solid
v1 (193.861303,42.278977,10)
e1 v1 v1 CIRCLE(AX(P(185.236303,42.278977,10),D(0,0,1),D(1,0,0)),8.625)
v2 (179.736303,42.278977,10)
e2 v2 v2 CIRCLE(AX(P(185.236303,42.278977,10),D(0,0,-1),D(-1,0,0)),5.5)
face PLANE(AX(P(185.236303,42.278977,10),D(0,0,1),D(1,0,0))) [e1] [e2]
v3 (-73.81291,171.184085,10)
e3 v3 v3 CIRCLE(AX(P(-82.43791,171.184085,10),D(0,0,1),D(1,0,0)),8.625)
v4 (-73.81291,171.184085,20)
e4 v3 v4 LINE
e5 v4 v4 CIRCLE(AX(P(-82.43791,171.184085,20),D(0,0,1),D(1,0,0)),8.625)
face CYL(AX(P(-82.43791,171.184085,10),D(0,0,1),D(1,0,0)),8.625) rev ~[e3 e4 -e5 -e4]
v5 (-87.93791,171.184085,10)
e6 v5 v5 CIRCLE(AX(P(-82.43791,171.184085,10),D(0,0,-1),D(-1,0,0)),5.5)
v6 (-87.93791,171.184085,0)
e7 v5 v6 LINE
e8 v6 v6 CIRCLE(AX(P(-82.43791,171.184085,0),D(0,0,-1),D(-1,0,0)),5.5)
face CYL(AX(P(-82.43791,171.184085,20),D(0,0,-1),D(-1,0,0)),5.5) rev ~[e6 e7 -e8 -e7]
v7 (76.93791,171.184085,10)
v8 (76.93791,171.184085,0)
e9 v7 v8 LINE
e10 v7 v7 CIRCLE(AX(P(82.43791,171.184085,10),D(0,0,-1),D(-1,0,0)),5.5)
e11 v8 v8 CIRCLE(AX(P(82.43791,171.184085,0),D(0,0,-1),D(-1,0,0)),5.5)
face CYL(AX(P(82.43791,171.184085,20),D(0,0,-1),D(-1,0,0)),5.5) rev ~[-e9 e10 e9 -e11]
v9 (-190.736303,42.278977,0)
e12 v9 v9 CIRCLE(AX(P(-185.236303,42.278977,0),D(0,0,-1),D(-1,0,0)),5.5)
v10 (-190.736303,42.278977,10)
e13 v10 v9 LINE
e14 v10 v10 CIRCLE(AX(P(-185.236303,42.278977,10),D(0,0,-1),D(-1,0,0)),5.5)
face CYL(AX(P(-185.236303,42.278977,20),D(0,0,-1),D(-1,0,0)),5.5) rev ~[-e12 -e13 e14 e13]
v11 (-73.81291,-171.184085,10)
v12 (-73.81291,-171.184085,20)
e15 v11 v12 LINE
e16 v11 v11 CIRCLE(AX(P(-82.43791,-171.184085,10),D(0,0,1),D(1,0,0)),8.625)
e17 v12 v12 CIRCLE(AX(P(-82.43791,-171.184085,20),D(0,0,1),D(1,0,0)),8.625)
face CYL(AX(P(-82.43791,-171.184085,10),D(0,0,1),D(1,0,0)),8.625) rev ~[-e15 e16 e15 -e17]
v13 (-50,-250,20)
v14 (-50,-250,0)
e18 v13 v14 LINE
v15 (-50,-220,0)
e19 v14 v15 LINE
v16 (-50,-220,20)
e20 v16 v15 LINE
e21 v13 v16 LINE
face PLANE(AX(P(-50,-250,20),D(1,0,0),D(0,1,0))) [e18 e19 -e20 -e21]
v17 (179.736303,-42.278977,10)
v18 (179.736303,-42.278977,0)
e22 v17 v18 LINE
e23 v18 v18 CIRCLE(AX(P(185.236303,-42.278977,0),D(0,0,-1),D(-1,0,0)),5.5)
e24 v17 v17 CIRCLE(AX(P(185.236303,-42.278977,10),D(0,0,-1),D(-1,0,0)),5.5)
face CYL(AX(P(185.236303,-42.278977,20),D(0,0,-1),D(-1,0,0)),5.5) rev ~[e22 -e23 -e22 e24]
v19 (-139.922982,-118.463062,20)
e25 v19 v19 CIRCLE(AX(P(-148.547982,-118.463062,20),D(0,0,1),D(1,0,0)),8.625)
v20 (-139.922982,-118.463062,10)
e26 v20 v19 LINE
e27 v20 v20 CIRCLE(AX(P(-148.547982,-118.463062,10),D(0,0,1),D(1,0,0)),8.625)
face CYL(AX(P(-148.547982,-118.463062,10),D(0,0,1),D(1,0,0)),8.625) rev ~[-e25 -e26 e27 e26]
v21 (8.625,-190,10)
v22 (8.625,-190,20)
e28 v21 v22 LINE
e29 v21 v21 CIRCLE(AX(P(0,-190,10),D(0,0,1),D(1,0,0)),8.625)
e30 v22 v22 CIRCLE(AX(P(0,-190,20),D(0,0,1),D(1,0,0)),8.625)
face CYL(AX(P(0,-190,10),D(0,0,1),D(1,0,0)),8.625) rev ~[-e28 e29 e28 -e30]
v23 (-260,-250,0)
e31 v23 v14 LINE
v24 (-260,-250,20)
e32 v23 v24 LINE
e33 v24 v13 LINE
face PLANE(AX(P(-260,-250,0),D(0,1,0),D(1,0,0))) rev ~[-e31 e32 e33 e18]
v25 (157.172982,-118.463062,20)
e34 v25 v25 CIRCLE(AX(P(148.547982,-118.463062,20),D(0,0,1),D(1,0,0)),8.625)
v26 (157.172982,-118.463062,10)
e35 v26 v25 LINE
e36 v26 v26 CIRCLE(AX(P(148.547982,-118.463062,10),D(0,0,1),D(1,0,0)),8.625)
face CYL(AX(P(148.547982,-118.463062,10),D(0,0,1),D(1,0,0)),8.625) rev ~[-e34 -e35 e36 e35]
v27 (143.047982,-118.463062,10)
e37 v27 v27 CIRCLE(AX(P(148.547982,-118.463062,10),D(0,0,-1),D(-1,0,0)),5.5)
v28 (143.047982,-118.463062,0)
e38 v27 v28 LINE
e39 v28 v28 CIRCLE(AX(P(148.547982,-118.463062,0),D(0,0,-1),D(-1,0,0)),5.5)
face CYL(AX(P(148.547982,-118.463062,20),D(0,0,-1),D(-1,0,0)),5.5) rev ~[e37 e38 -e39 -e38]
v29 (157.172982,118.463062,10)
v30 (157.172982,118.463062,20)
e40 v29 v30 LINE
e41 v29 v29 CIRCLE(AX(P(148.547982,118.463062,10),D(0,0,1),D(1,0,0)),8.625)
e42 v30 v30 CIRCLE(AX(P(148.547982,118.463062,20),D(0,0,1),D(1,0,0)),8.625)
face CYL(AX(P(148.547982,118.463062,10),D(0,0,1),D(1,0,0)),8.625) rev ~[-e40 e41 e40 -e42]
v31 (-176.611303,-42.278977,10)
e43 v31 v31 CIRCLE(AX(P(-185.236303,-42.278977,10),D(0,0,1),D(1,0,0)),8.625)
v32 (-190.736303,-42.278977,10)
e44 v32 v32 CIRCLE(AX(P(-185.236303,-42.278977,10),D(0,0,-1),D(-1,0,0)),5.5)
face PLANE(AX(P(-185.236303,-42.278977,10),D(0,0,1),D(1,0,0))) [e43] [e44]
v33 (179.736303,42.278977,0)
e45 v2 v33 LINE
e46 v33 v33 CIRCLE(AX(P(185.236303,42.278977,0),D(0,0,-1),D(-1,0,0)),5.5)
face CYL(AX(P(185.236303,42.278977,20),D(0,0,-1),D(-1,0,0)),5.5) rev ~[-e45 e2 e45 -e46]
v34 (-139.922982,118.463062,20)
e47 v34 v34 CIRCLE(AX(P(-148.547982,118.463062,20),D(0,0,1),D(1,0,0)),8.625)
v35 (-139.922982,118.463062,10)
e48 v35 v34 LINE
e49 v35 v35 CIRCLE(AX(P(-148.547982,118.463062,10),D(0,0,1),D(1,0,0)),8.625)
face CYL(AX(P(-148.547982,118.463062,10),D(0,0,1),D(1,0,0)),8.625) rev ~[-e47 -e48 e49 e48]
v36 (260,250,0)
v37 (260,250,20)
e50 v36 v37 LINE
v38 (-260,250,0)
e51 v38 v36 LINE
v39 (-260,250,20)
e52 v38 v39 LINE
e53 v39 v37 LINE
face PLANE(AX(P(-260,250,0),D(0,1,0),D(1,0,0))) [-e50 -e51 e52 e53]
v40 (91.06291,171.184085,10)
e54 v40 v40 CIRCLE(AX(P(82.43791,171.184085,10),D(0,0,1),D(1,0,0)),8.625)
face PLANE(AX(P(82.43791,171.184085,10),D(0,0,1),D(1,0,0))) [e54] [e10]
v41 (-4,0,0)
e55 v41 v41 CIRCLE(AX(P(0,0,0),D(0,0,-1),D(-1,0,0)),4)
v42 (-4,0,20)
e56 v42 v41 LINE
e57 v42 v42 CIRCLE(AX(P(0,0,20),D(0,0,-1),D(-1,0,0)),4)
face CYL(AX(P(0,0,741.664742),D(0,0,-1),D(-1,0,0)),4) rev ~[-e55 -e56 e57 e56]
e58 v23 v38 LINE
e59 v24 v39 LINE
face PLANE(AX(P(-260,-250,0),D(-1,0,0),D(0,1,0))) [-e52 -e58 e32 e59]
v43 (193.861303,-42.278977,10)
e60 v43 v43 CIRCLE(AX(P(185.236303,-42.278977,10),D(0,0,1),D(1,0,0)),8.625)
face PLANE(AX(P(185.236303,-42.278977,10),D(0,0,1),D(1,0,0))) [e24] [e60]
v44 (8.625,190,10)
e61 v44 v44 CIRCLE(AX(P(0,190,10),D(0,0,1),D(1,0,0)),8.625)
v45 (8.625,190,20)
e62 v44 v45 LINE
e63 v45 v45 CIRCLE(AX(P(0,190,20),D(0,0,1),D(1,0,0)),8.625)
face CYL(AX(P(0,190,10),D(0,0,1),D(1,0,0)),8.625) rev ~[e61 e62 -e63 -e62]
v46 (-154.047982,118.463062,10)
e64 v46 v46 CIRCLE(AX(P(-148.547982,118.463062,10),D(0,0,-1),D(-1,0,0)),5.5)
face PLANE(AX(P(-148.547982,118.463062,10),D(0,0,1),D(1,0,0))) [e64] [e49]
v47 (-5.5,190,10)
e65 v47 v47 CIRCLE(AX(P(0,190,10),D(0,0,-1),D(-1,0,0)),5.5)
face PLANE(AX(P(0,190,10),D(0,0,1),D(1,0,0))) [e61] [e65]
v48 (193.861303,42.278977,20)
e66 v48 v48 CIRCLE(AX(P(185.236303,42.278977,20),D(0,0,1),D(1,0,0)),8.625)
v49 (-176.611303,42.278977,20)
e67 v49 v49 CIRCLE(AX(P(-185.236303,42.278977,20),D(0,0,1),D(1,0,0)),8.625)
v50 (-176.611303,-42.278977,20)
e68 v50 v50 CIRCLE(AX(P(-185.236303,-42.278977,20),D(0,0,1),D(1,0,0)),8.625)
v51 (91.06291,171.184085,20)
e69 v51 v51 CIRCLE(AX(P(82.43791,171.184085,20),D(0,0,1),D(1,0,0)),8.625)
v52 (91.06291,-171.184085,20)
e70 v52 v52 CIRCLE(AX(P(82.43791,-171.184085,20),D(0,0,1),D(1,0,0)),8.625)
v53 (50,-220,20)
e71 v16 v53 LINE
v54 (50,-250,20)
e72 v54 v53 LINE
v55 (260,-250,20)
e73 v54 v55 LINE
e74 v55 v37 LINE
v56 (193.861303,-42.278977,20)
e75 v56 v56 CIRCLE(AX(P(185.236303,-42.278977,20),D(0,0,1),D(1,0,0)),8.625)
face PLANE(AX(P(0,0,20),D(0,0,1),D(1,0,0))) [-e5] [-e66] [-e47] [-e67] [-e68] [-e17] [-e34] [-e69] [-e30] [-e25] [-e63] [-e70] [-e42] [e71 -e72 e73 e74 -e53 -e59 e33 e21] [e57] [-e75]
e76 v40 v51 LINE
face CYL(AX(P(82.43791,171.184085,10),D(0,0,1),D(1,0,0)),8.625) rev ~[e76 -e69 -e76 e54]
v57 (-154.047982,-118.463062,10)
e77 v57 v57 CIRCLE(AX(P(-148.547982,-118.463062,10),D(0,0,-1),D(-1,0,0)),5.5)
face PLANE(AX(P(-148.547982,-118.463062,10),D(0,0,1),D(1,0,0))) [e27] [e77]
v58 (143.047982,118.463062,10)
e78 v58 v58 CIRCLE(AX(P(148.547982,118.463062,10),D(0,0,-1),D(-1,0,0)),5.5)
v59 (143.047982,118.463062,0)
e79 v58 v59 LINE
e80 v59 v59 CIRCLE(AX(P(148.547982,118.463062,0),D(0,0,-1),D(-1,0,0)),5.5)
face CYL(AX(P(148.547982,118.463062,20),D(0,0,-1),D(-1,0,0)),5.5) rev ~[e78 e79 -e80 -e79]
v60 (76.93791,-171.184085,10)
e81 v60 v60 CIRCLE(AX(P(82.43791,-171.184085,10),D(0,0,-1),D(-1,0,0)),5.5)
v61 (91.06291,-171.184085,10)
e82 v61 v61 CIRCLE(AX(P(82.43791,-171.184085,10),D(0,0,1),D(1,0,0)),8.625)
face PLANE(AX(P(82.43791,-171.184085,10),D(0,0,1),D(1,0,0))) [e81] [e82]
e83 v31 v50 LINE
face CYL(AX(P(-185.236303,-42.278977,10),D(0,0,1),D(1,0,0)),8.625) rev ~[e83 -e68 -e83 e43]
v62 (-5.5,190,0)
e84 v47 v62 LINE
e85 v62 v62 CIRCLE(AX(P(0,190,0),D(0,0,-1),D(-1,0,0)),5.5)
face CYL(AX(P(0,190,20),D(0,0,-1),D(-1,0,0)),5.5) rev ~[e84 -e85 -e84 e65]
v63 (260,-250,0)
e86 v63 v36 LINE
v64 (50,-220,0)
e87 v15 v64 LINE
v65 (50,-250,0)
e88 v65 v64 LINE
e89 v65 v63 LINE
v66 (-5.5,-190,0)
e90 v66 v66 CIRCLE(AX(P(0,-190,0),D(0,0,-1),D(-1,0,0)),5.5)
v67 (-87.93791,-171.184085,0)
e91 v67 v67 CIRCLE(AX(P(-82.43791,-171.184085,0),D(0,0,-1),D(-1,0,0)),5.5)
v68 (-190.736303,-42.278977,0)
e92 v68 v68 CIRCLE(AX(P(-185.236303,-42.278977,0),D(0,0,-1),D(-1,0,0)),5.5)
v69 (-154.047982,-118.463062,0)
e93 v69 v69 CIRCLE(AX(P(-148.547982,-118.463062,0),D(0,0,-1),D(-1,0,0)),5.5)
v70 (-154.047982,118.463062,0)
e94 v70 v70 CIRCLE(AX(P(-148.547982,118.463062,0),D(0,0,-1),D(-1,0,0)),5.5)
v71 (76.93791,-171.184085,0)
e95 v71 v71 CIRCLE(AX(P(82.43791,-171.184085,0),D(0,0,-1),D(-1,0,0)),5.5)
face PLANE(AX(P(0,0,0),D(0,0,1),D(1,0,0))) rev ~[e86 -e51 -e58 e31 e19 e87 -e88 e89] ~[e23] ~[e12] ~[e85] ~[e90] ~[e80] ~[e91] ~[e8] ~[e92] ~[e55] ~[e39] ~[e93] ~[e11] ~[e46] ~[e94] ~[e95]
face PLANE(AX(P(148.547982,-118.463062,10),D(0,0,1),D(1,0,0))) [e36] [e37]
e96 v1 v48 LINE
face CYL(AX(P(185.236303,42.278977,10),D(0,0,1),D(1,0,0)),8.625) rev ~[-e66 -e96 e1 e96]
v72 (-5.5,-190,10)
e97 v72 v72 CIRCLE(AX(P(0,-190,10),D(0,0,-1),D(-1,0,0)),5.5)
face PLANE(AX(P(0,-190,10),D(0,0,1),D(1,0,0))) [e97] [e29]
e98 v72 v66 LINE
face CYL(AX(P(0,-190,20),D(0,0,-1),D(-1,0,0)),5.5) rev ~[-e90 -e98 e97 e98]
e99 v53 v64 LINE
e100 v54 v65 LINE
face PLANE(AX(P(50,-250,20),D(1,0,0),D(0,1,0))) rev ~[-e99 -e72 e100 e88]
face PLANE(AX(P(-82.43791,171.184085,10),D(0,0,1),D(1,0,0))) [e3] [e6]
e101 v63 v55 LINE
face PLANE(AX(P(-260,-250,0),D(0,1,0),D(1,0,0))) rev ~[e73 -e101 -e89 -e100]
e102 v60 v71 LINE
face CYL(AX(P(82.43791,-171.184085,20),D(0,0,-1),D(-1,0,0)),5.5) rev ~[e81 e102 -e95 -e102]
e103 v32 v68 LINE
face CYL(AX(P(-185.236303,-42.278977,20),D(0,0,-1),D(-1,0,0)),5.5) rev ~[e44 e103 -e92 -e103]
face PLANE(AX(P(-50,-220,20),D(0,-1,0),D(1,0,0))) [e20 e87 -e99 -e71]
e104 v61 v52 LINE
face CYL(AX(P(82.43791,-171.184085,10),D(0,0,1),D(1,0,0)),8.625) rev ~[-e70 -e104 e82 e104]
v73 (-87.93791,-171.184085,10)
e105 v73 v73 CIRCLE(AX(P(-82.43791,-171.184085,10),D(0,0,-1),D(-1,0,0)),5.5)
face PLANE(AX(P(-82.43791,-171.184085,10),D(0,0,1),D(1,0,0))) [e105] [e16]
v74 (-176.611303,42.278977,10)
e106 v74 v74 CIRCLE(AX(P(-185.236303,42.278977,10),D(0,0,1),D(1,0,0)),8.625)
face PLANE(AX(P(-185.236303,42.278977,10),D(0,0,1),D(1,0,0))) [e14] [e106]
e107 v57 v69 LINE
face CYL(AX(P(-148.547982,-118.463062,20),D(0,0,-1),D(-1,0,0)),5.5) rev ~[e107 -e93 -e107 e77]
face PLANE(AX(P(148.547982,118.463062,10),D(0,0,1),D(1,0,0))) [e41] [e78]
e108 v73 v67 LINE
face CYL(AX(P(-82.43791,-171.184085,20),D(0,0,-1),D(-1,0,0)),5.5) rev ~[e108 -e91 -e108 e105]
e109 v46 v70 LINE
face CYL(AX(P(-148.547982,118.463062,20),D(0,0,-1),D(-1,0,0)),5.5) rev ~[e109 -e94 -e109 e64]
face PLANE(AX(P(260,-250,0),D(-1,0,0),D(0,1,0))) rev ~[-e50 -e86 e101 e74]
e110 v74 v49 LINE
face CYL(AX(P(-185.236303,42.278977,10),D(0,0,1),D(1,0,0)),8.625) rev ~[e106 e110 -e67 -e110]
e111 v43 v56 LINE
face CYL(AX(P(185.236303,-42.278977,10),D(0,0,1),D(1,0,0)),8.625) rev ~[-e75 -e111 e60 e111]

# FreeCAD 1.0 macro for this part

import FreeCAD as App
import Part
import Sketcher


def add_polygon(sketch, points):
    """Adds a closed chain of lines whose ends are joined by coincident constraints."""
    first, n = sketch.GeometryCount, len(points)
    for a, b in zip(points, points[1:] + points[:1]):
        sketch.addGeometry(Part.LineSegment(App.Vector(*a, 0), App.Vector(*b, 0)), False)
    for i in range(n):
        sketch.addConstraint(Sketcher.Constraint("Coincident", first + i, 2, first + (i + 1) % n, 1))

doc = App.newDocument("Part")
body = doc.addObject("PartDesign::Body", "Body")

sketch1 = body.newObject("Sketcher::SketchObject", "Sketch")
sketch1.AttachmentSupport = (doc.getObject("XY_Plane"), [""])
sketch1.MapMode = "FlatFace"
add_polygon(sketch1, [(-260, 250), (-260, -250), (260, -250), (260, 250)])
sketch1.addConstraint([
    Sketcher.Constraint("Vertical", 0),
    Sketcher.Constraint("Horizontal", 1),
    Sketcher.Constraint("Vertical", 2),
    Sketcher.Constraint("Horizontal", 3),
    Sketcher.Constraint("Symmetric", 0, 2, 2, 2, -1, 1),
    Sketcher.Constraint("DistanceX", 1, 1, 1, 2, 520.0),
    Sketcher.Constraint("DistanceY", 0, 2, 0, 1, 500.0),
])
pad1 = body.newObject("PartDesign::Pad", "Pad")
pad1.Profile = sketch1
pad1.Length = 20

sketch2 = body.newObject("Sketcher::SketchObject", "Sketch001")
sketch2.AttachmentSupport = (doc.getObject("XY_Plane"), [""])
sketch2.MapMode = "FlatFace"
sketch2.AttachmentOffset = App.Placement(App.Vector(0, 0, 20), App.Rotation())
sketch2.addGeometry([
    Part.Circle(App.Vector(0, 190, 0), App.Vector(0, 0, 1), 5.5),
    Part.Circle(App.Vector(82.43791, 171.184085, 0), App.Vector(0, 0, 1), 5.5),
    Part.Circle(App.Vector(148.547982, 118.463062, 0), App.Vector(0, 0, 1), 5.5),
    Part.Circle(App.Vector(185.236303, 42.278977, 0), App.Vector(0, 0, 1), 5.5),
    Part.Circle(App.Vector(185.236303, -42.278977, 0), App.Vector(0, 0, 1), 5.5),
    Part.Circle(App.Vector(148.547982, -118.463062, 0), App.Vector(0, 0, 1), 5.5),
    Part.Circle(App.Vector(82.43791, -171.184085, 0), App.Vector(0, 0, 1), 5.5),
    Part.Circle(App.Vector(0, -190, 0), App.Vector(0, 0, 1), 5.5),
    Part.Circle(App.Vector(-82.43791, -171.184085, 0), App.Vector(0, 0, 1), 5.5),
    Part.Circle(App.Vector(-148.547982, -118.463062, 0), App.Vector(0, 0, 1), 5.5),
    Part.Circle(App.Vector(-185.236303, -42.278977, 0), App.Vector(0, 0, 1), 5.5),
    Part.Circle(App.Vector(-185.236303, 42.278977, 0), App.Vector(0, 0, 1), 5.5),
    Part.Circle(App.Vector(-148.547982, 118.463062, 0), App.Vector(0, 0, 1), 5.5),
    Part.Circle(App.Vector(-82.43791, 171.184085, 0), App.Vector(0, 0, 1), 5.5),
], False)
sketch2.addConstraint([
    Sketcher.Constraint("Equal", 0, 1),
    Sketcher.Constraint("Equal", 1, 2),
    Sketcher.Constraint("Equal", 2, 3),
    Sketcher.Constraint("Equal", 3, 4),
    Sketcher.Constraint("Equal", 4, 5),
    Sketcher.Constraint("Equal", 5, 6),
    Sketcher.Constraint("Equal", 6, 7),
    Sketcher.Constraint("Equal", 7, 8),
    Sketcher.Constraint("Equal", 8, 9),
    Sketcher.Constraint("Equal", 9, 10),
    Sketcher.Constraint("Equal", 10, 11),
    Sketcher.Constraint("Equal", 11, 12),
    Sketcher.Constraint("Equal", 12, 13),
    Sketcher.Constraint("Symmetric", 0, 3, 7, 3, -1, 1),
    Sketcher.Constraint("Symmetric", 1, 3, 8, 3, -1, 1),
    Sketcher.Constraint("Symmetric", 2, 3, 9, 3, -1, 1),
    Sketcher.Constraint("Symmetric", 3, 3, 10, 3, -1, 1),
    Sketcher.Constraint("Symmetric", 4, 3, 11, 3, -1, 1),
    Sketcher.Constraint("Symmetric", 5, 3, 12, 3, -1, 1),
    Sketcher.Constraint("Symmetric", 6, 3, 13, 3, -1, 1),
    Sketcher.Constraint("Symmetric", 6, 3, 8, 3, -2),
    Sketcher.Constraint("Symmetric", 5, 3, 9, 3, -2),
    Sketcher.Constraint("Symmetric", 4, 3, 10, 3, -2),
    Sketcher.Constraint("PointOnObject", 0, 3, -2),
    Sketcher.Constraint("Diameter", 0, 11.0),
    Sketcher.Constraint("DistanceY", -1, 1, 0, 3, 190.0),
    Sketcher.Constraint("DistanceX", -1, 1, 1, 3, 82.43791),
    Sketcher.Constraint("DistanceX", -1, 1, 2, 3, 148.547982),
    Sketcher.Constraint("DistanceX", 2, 3, 3, 3, 36.688322),
    Sketcher.Constraint("DistanceY", 4, 3, 2, 3, 160.74204),
    Sketcher.Constraint("DistanceY", 6, 3, 1, 3, 342.36817),
    Sketcher.Constraint("DistanceY", -1, 1, 2, 3, 118.463062),
])
doc.recompute()
hole = body.newObject("PartDesign::Hole", "Hole")
hole.Profile = sketch2
hole.ThreadType = "None"
hole.Diameter = 11
hole.DepthType = "ThroughAll"
hole.HoleCutType = "Counterbore"
hole.HoleCutDiameter = 17.25
hole.HoleCutDepth = 10

sketch3 = body.newObject("Sketcher::SketchObject", "Sketch002")
sketch3.AttachmentSupport = (doc.getObject("XY_Plane"), [""])
sketch3.MapMode = "FlatFace"
sketch3.AttachmentOffset = App.Placement(App.Vector(0, 0, 20), App.Rotation())
sketch3.addGeometry(Part.Circle(App.Vector(0, 0, 0), App.Vector(0, 0, 1), 4), False)
sketch3.addConstraint([
    Sketcher.Constraint("Coincident", 0, 3, -1, 1),
    Sketcher.Constraint("Diameter", 0, 8.0),
])
doc.recompute()
hole2 = body.newObject("PartDesign::Hole", "Hole001")
hole2.Profile = sketch3
hole2.ThreadType = "None"
hole2.Diameter = 8
hole2.DepthType = "ThroughAll"

sketch4 = body.newObject("Sketcher::SketchObject", "Sketch003")
sketch4.AttachmentSupport = (doc.getObject("XY_Plane"), [""])
sketch4.MapMode = "FlatFace"
sketch4.AttachmentOffset = App.Placement(App.Vector(0, 0, 20), App.Rotation())
add_polygon(sketch4, [(-50, -220), (-50, -250), (50, -250), (50, -220)])
sketch4.addConstraint([
    Sketcher.Constraint("Vertical", 0),
    Sketcher.Constraint("Horizontal", 1),
    Sketcher.Constraint("Vertical", 2),
    Sketcher.Constraint("Horizontal", 3),
    Sketcher.Constraint("DistanceX", 1, 1, 1, 2, 100.0),
    Sketcher.Constraint("DistanceY", 0, 2, 0, 1, 30.0),
    Sketcher.Constraint("DistanceX", 0, 2, -1, 1, 50.0),
    Sketcher.Constraint("DistanceY", 0, 2, -1, 1, 250.0),
])
pocket1 = body.newObject("PartDesign::Pocket", "Pocket")
pocket1.Profile = sketch4
pocket1.Type = "ThroughAll"

doc.recompute()
